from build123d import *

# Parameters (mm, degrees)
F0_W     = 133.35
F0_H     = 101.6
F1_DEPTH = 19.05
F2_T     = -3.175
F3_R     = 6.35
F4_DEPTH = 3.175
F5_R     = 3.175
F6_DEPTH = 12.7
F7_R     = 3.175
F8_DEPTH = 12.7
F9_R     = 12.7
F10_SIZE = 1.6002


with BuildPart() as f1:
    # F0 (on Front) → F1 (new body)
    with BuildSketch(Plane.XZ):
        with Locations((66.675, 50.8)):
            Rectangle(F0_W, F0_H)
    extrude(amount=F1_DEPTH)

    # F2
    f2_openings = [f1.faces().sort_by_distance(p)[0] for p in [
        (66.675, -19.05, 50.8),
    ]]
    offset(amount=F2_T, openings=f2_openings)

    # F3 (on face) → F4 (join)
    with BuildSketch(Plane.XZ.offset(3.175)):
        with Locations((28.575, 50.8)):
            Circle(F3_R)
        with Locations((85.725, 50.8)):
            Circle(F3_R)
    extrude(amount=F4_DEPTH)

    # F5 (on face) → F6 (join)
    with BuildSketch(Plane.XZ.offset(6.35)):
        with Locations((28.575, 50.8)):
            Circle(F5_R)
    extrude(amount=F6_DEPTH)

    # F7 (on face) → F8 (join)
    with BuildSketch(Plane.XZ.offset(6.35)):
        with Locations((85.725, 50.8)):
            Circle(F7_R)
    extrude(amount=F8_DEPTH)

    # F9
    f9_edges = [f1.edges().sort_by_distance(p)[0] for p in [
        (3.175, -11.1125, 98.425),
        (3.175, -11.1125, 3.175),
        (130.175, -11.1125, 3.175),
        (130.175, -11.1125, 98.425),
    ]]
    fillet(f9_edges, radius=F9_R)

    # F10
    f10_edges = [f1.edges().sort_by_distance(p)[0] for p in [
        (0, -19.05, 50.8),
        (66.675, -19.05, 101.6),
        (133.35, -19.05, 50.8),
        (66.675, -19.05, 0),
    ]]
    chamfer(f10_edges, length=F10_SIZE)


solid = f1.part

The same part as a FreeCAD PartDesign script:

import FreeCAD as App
import Part
import Sketcher

V = App.Vector
Q = App.Units.Quantity


def edges_at(feature, points):
    """Names of the edges that pass closest to the given points."""
    edges = feature.Shape.Edges
    near = lambda p: min(range(len(edges)), key=lambda i: edges[i].distToShape(Part.Vertex(*p))[0])
    return sorted({f"Edge{near(p) + 1}" for p in points})


def faces_at(feature, points):
    """Names of the faces that lie closest to the given points."""
    faces = feature.Shape.Faces
    near = lambda p: min(range(len(faces)), key=lambda i: faces[i].distToShape(Part.Vertex(*p))[0])
    return sorted({f"Face{near(p) + 1}" for p in points})


def add_polygon(sketch, points):
    """Adds a closed chain of lines whose ends are joined by coincident constraints."""
    first, n = sketch.GeometryCount, len(points)
    for a, b in zip(points, points[1:] + points[:1]):
        sketch.addGeometry(Part.LineSegment(App.Vector(*a, 0), App.Vector(*b, 0)), False)
    for i in range(n):
        sketch.addConstraint(Sketcher.Constraint("Coincident", first + i, 2, first + (i + 1) % n, 1))

doc = App.newDocument("Part")
body = doc.addObject("PartDesign::Body", "Body")

sketch1 = body.newObject("Sketcher::SketchObject", "Sketch")
sketch1.AttachmentSupport = (doc.getObject("XZ_Plane"), [""])
sketch1.MapMode = "FlatFace"
add_polygon(sketch1, [(0, 102), (0, 0), (133, 0), (133, 102)])
sketch1.addConstraint(Sketcher.Constraint("Vertical", 0))
sketch1.addConstraint(Sketcher.Constraint("Horizontal", 1))
sketch1.addConstraint(Sketcher.Constraint("Vertical", 2))
sketch1.addConstraint(Sketcher.Constraint("Horizontal", 3))
sketch1.addConstraint(Sketcher.Constraint("Coincident", 0, 2, -1, 1))
sketch1.addConstraint(Sketcher.Constraint("DistanceY", 0, 2, 0, 1, Q("4 in")))
sketch1.addConstraint(Sketcher.Constraint("DistanceX", 1, 1, 1, 2, Q("5.25 in")))
pad1 = body.newObject("PartDesign::Pad", "Pad")
pad1.Profile = sketch1
pad1.Length = Q("0.75 in")
doc.recompute()

thickness = body.newObject("PartDesign::Thickness", "Thickness")
thickness.Base = (pad1, faces_at(pad1, [(66.675, -19.05, 50.8)]))
thickness.Value = Q("0.125 in")
thickness.Reversed = True
thickness.Join = "Arc"

sketch2 = body.newObject("Sketcher::SketchObject", "Sketch001")
sketch2.AttachmentSupport = (doc.getObject("XZ_Plane"), [""])
sketch2.MapMode = "FlatFace"
sketch2.AttachmentOffset = App.Placement(V(0, 0, 0.125 * 25.4), App.Rotation())
sketch2.addGeometry(Part.Circle(V(29, 51, 0), V(0, 0, 1), 6), False)
sketch2.addGeometry(Part.Circle(V(86, 51, 0), V(0, 0, 1), 6), False)
sketch2.addConstraint(Sketcher.Constraint("Equal", 0, 1))
sketch2.addConstraint(Sketcher.Constraint("Horizontal", 0, 3, 1, 3))
sketch2.addConstraint(Sketcher.Constraint("Diameter", 0, Q("0.5 in")))
sketch2.addConstraint(Sketcher.Constraint("DistanceY", -1, 1, 0, 3, Q("2 in")))
sketch2.addConstraint(Sketcher.Constraint("DistanceX", 0, 3, 1, 3, Q("2.25 in")))
sketch2.addConstraint(Sketcher.Constraint("DistanceX", -1, 1, 0, 3, Q("1.125 in")))
pad2 = body.newObject("PartDesign::Pad", "Pad001")
pad2.Profile = sketch2
pad2.Length = Q("0.125 in")

sketch3 = body.newObject("Sketcher::SketchObject", "Sketch002")
sketch3.AttachmentSupport = (doc.getObject("XZ_Plane"), [""])
sketch3.MapMode = "FlatFace"
sketch3.AttachmentOffset = App.Placement(V(0, 0, 0.25 * 25.4), App.Rotation())
sketch3.addGeometry(Part.Circle(V(28.6, 50.8, 0), V(0, 0, 1), 3.2), False)
sketch3.addConstraint(Sketcher.Constraint("Diameter", 0, Q("0.25 in")))
sketch3.addConstraint(Sketcher.Constraint("DistanceY", -1, 1, 0, 3, Q("2 in")))
sketch3.addConstraint(Sketcher.Constraint("DistanceX", -1, 1, 0, 3, Q("1.125 in")))
pad3 = body.newObject("PartDesign::Pad", "Pad002")
pad3.Profile = sketch3
pad3.Length = Q("0.5 in")

sketch4 = body.newObject("Sketcher::SketchObject", "Sketch003")
sketch4.AttachmentSupport = (doc.getObject("XZ_Plane"), [""])
sketch4.MapMode = "FlatFace"
sketch4.AttachmentOffset = App.Placement(V(0, 0, 0.25 * 25.4), App.Rotation())
sketch4.addGeometry(Part.Circle(V(85.7, 50.8, 0), V(0, 0, 1), 3.2), False)
sketch4.addConstraint(Sketcher.Constraint("Diameter", 0, Q("0.25 in")))
sketch4.addConstraint(Sketcher.Constraint("DistanceY", -1, 1, 0, 3, Q("2 in")))
sketch4.addConstraint(Sketcher.Constraint("DistanceX", -1, 1, 0, 3, Q("3.375 in")))
pad4 = body.newObject("PartDesign::Pad", "Pad003")
pad4.Profile = sketch4
pad4.Length = Q("0.5 in")
doc.recompute()

fillet = body.newObject("PartDesign::Fillet", "Fillet")
fillet.Base = (pad4, edges_at(pad4, [
    (3.175, -11.113, 98.425),
    (3.175, -11.113, 3.175),
    (130.175, -11.113, 3.175),
    (130.175, -11.113, 98.425),
]))
fillet.Radius = Q("0.5 in")
doc.recompute()

chamfer = body.newObject("PartDesign::Chamfer", "Chamfer")
chamfer.Base = (fillet, edges_at(fillet, [
    (0, -19.05, 50.8),
    (66.675, -19.05, 101.6),
    (133.35, -19.05, 50.8),
    (66.675, -19.05, 0),
]))
chamfer.Size = Q("0.063 in")

doc.recompute()
